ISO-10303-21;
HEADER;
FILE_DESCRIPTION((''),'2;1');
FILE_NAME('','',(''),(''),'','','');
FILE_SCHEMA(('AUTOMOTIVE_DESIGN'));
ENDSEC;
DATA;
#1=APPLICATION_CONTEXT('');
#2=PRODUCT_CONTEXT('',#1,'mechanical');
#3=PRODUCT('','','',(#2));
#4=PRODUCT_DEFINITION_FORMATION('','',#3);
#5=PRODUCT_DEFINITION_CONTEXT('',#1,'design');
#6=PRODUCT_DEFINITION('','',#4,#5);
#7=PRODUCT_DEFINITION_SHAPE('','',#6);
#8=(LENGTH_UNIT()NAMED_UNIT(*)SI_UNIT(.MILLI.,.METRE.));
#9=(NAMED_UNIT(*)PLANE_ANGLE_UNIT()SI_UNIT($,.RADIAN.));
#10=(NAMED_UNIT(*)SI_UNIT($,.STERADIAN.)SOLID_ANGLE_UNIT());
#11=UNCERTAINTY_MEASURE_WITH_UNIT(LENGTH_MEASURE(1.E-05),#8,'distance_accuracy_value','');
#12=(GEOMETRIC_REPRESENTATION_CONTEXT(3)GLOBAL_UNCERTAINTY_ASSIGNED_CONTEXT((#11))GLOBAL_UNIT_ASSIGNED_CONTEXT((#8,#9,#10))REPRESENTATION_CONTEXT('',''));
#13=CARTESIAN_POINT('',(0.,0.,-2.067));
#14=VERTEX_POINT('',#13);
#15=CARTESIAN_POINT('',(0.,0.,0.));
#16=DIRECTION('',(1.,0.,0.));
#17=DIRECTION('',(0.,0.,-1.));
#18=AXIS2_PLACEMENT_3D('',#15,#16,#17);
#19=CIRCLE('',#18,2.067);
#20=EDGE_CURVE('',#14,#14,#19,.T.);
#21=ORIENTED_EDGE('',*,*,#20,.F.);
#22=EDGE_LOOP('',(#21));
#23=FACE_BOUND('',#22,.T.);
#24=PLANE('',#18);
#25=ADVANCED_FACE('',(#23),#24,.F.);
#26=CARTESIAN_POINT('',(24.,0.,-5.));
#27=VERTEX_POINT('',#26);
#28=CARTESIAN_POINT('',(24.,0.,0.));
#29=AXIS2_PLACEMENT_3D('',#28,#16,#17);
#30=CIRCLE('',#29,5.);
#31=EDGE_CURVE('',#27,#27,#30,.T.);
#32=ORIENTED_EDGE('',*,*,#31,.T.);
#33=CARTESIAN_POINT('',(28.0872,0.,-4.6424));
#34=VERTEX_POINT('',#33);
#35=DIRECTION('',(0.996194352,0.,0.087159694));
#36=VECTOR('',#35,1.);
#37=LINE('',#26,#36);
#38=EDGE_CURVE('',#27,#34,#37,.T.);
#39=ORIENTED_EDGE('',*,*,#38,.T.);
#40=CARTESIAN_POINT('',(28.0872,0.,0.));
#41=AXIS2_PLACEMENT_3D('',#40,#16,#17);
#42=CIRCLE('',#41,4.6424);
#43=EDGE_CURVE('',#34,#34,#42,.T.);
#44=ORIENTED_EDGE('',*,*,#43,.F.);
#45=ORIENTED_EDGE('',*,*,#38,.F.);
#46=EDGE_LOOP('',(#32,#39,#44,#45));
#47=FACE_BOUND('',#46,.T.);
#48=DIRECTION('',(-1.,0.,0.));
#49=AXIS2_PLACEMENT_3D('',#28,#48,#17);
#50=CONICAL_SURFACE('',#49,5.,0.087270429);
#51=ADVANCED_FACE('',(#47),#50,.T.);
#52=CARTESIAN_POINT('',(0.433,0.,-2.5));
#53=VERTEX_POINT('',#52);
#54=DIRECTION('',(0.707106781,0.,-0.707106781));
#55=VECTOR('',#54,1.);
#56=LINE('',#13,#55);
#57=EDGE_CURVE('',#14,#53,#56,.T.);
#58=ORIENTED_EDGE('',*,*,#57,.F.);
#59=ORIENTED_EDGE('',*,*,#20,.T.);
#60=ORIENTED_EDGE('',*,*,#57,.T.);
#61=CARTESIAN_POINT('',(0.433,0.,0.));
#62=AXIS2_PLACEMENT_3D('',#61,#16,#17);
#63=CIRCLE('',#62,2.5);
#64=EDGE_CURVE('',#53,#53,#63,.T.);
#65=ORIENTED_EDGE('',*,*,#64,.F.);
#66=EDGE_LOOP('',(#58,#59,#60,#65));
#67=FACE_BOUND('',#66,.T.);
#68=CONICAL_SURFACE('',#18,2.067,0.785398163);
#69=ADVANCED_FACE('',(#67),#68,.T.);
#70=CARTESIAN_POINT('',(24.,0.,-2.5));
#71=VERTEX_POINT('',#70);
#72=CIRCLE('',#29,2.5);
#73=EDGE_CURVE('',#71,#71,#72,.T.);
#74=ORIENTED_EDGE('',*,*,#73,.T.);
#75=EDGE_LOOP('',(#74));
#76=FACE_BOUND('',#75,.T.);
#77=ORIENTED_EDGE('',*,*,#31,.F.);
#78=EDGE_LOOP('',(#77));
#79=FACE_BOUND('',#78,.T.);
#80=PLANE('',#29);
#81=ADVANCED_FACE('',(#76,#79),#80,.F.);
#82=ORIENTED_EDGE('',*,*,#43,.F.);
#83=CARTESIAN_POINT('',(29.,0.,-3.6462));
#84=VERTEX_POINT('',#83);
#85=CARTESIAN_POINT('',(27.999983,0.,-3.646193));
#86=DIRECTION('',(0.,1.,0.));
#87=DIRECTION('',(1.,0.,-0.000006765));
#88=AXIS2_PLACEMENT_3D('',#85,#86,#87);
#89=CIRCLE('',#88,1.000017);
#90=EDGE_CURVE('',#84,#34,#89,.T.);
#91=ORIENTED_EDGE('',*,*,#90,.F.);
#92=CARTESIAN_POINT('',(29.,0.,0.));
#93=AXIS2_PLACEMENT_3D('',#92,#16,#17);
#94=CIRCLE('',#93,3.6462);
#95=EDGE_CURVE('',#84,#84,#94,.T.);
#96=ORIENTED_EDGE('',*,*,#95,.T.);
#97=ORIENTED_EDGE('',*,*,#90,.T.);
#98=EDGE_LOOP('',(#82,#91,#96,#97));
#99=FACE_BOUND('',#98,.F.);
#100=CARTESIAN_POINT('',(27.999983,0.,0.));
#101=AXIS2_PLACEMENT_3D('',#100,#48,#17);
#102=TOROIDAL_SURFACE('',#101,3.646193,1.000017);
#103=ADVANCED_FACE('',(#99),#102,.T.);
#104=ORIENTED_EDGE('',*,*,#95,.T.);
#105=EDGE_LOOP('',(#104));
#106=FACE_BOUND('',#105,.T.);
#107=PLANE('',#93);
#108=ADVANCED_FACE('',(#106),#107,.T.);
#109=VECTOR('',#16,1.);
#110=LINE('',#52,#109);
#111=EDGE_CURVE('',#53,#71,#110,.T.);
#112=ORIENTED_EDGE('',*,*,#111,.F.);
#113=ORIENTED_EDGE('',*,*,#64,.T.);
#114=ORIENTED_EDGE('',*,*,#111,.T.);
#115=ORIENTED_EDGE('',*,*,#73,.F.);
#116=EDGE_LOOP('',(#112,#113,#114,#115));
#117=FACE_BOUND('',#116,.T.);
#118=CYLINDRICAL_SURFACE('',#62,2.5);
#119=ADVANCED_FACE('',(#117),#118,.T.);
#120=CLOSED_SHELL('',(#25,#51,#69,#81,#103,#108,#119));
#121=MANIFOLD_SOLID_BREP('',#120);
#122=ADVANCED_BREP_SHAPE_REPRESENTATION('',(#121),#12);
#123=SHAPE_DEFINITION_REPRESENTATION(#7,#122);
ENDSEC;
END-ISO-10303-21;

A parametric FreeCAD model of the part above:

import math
import FreeCAD as App
import Part
import Sketcher
Q = App.Units.Quantity

doc = App.newDocument("Part")
body = doc.addObject("PartDesign::Body", "Body")

# Sketch on XZ plane
sketch1 = doc.addObject("Sketcher::SketchObject", "Sketch")
body.addObject(sketch1)
sketch1.AttachmentSupport = (doc.XZ_Plane, [""])
sketch1.MapMode = "FlatFace"
sketch1.addGeometry([
    Part.LineSegment(App.Vector(0, 0, 0), App.Vector(29, 0, 0)),  # 0
    Part.LineSegment(App.Vector(29, 0, 0), App.Vector(29, -3.6, 0)),  # 1
    Part.ArcOfCircle(Part.Circle(App.Vector(28, -3.6, 0), App.Vector(0, 0, 1), 1), math.radians(-85), math.radians(0)),  # 2
    Part.LineSegment(App.Vector(28.1, -4.6, 0), App.Vector(24, -5, 0)),  # 3
    Part.LineSegment(App.Vector(24, -5, 0), App.Vector(24, -2.5, 0)),  # 4
    Part.LineSegment(App.Vector(24, -2.5, 0), App.Vector(0.4, -2.5, 0)),  # 5
    Part.LineSegment(App.Vector(0.4, -2.5, 0), App.Vector(0, -2.1, 0)),  # 6
    Part.LineSegment(App.Vector(0, -2.1, 0), App.Vector(0, 0, 0)),  # 7
], False)
sketch1.addConstraint([
    Sketcher.Constraint("Coincident", 0, 2, 1, 1),
    Sketcher.Constraint("Tangent", 1, 2, 2, 2),
    Sketcher.Constraint("Tangent", 2, 1, 3, 1),
    Sketcher.Constraint("Coincident", 3, 2, 4, 1),
    Sketcher.Constraint("Coincident", 4, 2, 5, 1),
    Sketcher.Constraint("Coincident", 5, 2, 6, 1),
    Sketcher.Constraint("Coincident", 6, 2, 7, 1),
    Sketcher.Constraint("Coincident", 7, 2, 0, 1),
    Sketcher.Constraint("Horizontal", 0),
    Sketcher.Constraint("Vertical", 1),
    Sketcher.Constraint("Vertical", 4),
    Sketcher.Constraint("Horizontal", 5),
    Sketcher.Constraint("Vertical", 7),
    Sketcher.Constraint("Coincident", 7, 2, -1, 1),
    Sketcher.Constraint("Radius", 2, 1.0),
    Sketcher.Constraint("DistanceX", 0, 1, 0, 2, 29.0),
    Sketcher.Constraint("Angle", 3, Q("-174.9998 deg")),
    Sketcher.Constraint("Angle", 6, Q("135 deg")),
    Sketcher.Constraint("DistanceY", 4, 1, 4, 2, 2.5),
    Sketcher.Constraint("DistanceX", -1, 1, 3, 2, 24.0),
    Sketcher.Constraint("DistanceY", 3, 2, -1, 1, 5.0),
    Sketcher.Constraint("DistanceX", 5, 2, 5, 1, 23.567),
])
revolution = doc.addObject("PartDesign::Revolution", "Revolution")
body.addObject(revolution)
revolution.Profile = sketch1
revolution.ReferenceAxis = (sketch1, ["H_Axis"])
revolution.Angle = 360

doc.recompute()
